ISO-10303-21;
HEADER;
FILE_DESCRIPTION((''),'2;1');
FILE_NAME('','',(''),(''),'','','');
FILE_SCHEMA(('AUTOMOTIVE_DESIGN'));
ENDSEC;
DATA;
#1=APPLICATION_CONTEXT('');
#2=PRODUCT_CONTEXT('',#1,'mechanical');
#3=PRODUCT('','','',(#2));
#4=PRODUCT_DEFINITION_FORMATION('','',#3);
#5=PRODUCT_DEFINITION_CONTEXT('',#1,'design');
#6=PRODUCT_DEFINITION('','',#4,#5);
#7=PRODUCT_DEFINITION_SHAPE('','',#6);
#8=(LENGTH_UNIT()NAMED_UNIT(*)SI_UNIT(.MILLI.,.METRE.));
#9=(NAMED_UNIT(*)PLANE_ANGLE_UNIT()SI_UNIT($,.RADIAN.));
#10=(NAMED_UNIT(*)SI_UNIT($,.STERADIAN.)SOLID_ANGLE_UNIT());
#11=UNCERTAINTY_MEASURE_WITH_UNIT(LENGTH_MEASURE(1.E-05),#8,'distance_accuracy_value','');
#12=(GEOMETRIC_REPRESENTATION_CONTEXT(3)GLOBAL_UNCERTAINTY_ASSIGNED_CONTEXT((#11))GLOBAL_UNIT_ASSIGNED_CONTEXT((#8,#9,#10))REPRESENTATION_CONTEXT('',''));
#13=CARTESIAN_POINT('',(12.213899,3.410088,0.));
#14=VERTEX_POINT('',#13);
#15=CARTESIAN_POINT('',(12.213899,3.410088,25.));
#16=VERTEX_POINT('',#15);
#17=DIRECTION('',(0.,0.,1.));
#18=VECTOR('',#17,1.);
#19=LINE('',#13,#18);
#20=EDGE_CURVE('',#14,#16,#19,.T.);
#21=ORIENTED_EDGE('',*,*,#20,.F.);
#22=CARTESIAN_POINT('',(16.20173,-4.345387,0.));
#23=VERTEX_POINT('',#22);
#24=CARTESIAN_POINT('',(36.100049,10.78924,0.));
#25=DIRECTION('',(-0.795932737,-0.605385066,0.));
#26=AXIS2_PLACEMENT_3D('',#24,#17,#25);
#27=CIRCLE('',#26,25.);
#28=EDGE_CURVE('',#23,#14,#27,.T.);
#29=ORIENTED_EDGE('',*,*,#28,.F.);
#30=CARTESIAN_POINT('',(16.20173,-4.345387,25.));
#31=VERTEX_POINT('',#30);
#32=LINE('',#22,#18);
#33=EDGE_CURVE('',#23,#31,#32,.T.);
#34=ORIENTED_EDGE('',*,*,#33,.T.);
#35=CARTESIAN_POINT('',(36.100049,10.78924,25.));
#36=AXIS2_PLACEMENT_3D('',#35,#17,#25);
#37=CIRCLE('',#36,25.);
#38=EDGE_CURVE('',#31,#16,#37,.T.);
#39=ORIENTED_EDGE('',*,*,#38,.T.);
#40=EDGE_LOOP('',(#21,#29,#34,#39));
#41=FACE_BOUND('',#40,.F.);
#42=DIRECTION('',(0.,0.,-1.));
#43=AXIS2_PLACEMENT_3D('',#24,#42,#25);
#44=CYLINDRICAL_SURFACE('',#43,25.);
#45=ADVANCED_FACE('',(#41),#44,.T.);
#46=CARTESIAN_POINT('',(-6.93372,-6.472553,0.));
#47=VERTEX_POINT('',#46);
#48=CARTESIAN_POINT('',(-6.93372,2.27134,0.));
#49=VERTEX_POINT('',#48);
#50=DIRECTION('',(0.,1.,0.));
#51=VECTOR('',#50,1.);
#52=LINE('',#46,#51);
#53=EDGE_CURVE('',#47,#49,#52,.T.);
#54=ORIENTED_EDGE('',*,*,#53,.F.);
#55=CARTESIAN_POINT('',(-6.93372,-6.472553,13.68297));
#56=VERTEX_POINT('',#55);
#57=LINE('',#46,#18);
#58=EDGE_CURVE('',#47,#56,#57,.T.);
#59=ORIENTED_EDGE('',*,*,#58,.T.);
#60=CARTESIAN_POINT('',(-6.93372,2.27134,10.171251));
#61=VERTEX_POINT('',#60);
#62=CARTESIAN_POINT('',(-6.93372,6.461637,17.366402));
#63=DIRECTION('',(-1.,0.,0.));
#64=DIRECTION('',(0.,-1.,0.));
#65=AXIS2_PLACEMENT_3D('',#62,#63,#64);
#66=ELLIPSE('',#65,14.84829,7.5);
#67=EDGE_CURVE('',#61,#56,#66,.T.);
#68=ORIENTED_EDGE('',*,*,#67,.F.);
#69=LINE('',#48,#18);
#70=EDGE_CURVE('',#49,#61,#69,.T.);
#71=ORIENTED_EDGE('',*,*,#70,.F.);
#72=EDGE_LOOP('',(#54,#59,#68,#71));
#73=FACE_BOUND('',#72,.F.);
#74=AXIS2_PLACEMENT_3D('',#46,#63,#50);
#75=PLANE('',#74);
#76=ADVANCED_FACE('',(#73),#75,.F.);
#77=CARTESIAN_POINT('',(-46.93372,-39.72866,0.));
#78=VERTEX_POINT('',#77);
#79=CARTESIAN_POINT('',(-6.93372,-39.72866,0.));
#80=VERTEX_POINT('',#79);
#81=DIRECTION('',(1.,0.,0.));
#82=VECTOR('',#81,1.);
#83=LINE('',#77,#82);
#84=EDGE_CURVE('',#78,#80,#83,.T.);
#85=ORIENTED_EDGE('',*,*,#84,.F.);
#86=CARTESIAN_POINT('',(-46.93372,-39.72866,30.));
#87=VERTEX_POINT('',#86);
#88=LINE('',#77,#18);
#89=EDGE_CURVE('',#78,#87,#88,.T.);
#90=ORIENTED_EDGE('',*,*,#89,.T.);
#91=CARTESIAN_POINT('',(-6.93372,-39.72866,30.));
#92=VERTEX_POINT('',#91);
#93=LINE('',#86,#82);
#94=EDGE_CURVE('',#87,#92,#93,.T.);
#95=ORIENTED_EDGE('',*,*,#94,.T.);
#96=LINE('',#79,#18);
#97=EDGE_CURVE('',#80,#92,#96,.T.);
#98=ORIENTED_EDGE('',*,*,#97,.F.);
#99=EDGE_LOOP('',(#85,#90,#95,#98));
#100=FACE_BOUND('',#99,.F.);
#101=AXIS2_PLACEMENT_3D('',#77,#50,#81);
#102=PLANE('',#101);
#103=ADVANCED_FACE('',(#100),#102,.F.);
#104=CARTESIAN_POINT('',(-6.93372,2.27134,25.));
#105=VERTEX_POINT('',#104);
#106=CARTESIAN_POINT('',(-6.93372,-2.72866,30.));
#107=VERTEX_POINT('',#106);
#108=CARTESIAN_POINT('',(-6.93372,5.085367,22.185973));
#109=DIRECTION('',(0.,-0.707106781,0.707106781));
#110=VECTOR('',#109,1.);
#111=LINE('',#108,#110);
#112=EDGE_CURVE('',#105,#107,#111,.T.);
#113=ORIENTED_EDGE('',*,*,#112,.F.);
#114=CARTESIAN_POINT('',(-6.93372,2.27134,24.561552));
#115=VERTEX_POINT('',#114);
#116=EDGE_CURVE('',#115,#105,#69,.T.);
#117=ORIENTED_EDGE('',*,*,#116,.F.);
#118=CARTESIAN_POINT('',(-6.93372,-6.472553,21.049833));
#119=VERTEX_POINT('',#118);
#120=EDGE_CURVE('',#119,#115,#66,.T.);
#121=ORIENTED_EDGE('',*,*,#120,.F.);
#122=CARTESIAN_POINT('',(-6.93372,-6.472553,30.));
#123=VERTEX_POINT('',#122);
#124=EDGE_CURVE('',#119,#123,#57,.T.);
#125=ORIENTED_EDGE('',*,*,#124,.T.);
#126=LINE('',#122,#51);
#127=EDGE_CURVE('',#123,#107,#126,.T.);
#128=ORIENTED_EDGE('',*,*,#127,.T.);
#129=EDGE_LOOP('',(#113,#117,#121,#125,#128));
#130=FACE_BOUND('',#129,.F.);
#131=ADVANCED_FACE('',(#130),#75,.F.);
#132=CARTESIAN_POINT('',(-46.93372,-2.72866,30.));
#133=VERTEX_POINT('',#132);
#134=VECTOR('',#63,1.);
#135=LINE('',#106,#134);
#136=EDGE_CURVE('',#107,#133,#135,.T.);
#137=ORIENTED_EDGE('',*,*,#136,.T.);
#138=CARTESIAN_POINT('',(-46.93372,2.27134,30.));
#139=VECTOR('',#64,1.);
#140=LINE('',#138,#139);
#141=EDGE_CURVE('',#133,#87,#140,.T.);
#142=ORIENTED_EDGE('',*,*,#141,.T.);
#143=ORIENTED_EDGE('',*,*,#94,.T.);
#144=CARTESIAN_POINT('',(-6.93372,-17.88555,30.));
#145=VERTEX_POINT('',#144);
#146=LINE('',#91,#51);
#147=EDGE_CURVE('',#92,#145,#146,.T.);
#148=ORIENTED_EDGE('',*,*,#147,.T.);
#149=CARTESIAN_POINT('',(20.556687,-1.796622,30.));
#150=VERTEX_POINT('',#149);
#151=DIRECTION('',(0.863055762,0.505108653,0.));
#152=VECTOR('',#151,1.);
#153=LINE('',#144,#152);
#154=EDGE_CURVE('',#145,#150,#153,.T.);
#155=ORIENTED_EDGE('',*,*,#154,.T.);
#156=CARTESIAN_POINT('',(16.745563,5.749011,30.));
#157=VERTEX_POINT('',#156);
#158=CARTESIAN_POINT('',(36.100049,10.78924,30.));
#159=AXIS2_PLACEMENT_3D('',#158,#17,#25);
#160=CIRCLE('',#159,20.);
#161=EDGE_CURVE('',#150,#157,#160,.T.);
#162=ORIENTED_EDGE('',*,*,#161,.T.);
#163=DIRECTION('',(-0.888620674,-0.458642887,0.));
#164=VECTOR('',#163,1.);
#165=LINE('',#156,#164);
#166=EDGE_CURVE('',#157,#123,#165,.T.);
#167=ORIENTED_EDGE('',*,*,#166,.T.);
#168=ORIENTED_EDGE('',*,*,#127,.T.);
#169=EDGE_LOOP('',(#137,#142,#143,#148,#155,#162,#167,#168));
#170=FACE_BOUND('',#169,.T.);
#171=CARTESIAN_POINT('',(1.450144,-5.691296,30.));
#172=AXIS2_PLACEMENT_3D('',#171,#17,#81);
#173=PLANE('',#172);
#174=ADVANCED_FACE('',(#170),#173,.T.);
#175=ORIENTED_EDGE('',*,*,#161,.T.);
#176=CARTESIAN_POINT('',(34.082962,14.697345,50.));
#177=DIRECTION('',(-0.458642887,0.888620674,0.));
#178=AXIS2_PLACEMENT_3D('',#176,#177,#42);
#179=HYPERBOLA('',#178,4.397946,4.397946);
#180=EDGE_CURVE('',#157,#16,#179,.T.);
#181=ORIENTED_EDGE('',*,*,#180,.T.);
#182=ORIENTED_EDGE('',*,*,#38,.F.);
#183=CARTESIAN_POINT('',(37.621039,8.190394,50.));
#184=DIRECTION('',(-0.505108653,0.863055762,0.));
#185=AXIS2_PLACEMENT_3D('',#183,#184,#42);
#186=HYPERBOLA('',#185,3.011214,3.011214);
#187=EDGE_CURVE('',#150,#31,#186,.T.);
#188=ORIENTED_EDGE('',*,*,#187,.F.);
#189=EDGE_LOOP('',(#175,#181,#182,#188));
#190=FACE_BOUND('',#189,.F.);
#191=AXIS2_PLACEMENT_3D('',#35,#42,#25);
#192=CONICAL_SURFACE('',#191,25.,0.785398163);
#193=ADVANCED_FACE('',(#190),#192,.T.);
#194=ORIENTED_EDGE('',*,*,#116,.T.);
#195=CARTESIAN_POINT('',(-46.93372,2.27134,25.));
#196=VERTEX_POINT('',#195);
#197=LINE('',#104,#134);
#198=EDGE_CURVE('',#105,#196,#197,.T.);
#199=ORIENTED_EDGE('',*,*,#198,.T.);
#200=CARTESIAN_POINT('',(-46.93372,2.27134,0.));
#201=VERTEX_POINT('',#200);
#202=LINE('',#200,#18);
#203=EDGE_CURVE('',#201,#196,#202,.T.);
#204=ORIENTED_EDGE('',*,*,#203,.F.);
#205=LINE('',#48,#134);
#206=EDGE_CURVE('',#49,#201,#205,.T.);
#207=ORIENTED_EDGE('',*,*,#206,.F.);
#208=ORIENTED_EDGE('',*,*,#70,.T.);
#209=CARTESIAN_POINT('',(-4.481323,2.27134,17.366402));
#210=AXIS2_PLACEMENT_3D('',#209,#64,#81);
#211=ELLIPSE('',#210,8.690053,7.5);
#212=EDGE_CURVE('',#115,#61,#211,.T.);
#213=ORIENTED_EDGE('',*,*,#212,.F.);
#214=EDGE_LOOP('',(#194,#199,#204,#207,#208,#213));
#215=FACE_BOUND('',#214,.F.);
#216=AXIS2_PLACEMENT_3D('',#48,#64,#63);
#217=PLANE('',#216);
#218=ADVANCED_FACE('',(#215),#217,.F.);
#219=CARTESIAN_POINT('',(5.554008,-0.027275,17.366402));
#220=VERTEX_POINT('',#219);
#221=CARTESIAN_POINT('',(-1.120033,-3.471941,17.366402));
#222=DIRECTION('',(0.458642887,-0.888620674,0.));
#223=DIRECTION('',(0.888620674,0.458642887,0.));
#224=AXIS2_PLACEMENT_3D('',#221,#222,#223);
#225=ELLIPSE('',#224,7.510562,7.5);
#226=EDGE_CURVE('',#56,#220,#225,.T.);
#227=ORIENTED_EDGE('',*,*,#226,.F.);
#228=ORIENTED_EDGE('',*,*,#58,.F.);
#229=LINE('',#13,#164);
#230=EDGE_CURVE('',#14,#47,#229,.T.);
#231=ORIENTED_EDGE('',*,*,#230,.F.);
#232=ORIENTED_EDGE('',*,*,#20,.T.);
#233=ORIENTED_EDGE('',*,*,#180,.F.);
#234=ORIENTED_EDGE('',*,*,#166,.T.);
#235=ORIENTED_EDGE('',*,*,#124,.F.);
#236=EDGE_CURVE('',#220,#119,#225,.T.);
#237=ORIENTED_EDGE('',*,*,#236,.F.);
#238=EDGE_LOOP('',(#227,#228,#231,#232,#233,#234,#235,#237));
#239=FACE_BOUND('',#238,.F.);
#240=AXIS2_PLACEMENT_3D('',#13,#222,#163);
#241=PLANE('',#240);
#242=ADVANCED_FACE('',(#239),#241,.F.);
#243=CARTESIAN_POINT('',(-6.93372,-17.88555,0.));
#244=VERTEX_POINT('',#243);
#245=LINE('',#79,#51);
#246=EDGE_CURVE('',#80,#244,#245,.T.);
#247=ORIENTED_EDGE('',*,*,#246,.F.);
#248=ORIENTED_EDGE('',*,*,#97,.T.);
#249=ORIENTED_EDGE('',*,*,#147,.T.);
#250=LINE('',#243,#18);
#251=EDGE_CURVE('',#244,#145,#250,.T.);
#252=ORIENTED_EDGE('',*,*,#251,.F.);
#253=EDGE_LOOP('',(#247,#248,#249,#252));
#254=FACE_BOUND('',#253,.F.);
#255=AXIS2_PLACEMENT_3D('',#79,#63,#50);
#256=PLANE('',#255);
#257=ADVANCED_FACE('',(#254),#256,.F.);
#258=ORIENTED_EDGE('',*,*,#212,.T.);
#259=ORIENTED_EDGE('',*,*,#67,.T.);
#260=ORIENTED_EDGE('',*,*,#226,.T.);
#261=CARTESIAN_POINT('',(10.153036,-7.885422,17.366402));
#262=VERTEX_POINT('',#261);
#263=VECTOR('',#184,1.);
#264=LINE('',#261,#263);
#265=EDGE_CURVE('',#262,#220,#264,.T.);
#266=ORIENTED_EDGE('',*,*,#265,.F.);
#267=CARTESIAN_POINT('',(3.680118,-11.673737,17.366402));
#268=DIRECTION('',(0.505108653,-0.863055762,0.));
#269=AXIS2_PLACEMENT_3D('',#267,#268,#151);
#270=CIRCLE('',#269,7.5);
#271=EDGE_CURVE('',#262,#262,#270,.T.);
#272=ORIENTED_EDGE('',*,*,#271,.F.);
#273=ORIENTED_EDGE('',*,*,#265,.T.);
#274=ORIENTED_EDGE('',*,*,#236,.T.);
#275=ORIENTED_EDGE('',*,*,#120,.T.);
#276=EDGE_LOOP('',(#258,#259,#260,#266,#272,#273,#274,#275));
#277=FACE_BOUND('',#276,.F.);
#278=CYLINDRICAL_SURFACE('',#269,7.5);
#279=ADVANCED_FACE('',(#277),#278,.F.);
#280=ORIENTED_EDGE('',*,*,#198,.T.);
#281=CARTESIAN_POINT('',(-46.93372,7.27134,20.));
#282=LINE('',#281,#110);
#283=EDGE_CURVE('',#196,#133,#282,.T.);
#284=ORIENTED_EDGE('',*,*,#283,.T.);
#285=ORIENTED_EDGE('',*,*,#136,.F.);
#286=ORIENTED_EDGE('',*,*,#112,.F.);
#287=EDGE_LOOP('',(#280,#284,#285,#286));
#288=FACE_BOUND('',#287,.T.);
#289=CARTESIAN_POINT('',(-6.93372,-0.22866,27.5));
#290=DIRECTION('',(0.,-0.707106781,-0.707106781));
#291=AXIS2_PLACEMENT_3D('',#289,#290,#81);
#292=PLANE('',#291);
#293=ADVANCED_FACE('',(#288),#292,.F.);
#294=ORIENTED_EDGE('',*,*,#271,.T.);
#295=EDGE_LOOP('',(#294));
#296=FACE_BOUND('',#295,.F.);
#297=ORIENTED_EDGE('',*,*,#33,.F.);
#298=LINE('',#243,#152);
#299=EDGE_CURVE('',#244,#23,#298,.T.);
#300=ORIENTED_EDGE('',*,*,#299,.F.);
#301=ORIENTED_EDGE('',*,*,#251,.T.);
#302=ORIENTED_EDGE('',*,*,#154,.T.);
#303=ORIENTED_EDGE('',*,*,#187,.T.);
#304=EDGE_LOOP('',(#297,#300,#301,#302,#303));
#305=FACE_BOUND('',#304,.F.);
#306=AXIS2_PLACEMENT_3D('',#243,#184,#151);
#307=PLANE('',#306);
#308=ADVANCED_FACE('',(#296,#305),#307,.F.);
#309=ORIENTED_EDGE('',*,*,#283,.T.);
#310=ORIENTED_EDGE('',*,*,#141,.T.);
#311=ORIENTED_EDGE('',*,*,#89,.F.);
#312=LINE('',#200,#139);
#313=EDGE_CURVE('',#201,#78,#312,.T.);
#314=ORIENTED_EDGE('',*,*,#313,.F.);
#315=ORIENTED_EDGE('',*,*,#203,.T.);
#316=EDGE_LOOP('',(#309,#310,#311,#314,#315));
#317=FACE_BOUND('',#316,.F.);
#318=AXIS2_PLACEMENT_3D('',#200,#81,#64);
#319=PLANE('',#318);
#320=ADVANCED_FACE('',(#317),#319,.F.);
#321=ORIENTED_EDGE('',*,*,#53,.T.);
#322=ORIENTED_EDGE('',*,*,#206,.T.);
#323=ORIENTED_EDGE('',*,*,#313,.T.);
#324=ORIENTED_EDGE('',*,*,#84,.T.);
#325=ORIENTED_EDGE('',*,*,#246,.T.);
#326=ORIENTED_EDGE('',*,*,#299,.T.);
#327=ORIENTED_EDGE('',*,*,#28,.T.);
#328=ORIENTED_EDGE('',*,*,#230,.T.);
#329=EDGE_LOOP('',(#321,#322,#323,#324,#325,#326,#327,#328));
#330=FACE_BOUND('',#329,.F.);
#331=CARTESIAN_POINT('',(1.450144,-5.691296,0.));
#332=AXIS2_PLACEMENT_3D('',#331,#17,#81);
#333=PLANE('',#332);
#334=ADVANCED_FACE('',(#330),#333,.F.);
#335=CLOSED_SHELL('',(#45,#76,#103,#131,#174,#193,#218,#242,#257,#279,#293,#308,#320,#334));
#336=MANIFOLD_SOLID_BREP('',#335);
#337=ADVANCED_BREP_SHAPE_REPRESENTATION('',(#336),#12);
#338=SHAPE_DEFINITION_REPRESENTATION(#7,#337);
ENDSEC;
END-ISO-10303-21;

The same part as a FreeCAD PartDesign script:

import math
import FreeCAD as App
import Part
import Sketcher
from FreeCAD import Vector


def edges_at(feature, points):
    """Names of the edges that pass closest to the given points."""
    edges = feature.Shape.Edges
    near = lambda p: min(range(len(edges)), key=lambda i: edges[i].distToShape(Part.Vertex(*p))[0])
    return sorted({f"Edge{near(p) + 1}" for p in points})

doc = App.newDocument("Part")
body = doc.addObject("PartDesign::Body", "Body")

# Sketch on XY plane
sketch1 = doc.addObject("Sketcher::SketchObject", "Sketch")
body.addObject(sketch1)
sketch1.AttachmentSupport = (doc.XY_Plane, [""])
sketch1.MapMode = "FlatFace"
sketch1.addGeometry([
    Part.LineSegment(Vector(-6.93372, 2.27134, 0), Vector(-46.93372, 2.27134, 0)),  # 0
    Part.LineSegment(Vector(-46.93372, 2.27134, 0), Vector(-46.93372, -39.72866, 0)),  # 1
    Part.LineSegment(Vector(-46.93372, -39.72866, 0), Vector(-6.93372, -39.72866, 0)),  # 2
    Part.LineSegment(Vector(-6.93372, -39.72866, 0), Vector(-6.93372, -17.88555, 0)),  # 3
    Part.LineSegment(Vector(-6.93372, -17.88555, 0), Vector(16.20173, -4.345387, 0)),  # 4
    Part.ArcOfCircle(Part.Circle(Vector(36.100049, 10.78924, 0), Vector(0, 0, 1), 25), math.radians(-142.743444), math.radians(197.167495)),  # 5
    Part.LineSegment(Vector(12.213899, 3.410088, 0), Vector(-6.93372, -6.472553, 0)),  # 6
    Part.LineSegment(Vector(-6.93372, -6.472553, 0), Vector(-6.93372, 2.27134, 0)),  # 7
], False)
sketch1.addConstraint([
    Sketcher.Constraint("Coincident", 0, 2, 1, 1),
    Sketcher.Constraint("Coincident", 1, 2, 2, 1),
    Sketcher.Constraint("Coincident", 2, 2, 3, 1),
    Sketcher.Constraint("Coincident", 3, 2, 4, 1),
    Sketcher.Constraint("Coincident", 4, 2, 5, 1),
    Sketcher.Constraint("Coincident", 5, 2, 6, 1),
    Sketcher.Constraint("Coincident", 6, 2, 7, 1),
    Sketcher.Constraint("Coincident", 7, 2, 0, 1),
    Sketcher.Constraint("Horizontal", 0),
    Sketcher.Constraint("Vertical", 1),
    Sketcher.Constraint("Horizontal", 2),
    Sketcher.Constraint("Vertical", 3),
    Sketcher.Constraint("Vertical", 7),
    Sketcher.Constraint("Vertical", 3, 2, 6, 2),
    Sketcher.Constraint("Radius", 5, 25.0),
    Sketcher.Constraint("DistanceX", 0, 2, 0, 1, 40.0),
    Sketcher.Constraint("DistanceY", 1, 2, 1, 1, 42.0),
    Sketcher.Constraint("DistanceY", 3, 1, 3, 2, 21.84311),
    Sketcher.Constraint("DistanceX", -1, 1, 5, 2, 12.213899),
    Sketcher.Constraint("DistanceY", 0, 2, 5, 3, 8.5179),
    Sketcher.Constraint("DistanceY", 7, 1, 7, 2, 8.743893),
    Sketcher.Constraint("DistanceX", -1, 1, 5, 3, 36.100049),
    Sketcher.Constraint("DistanceY", -1, 1, 5, 3, 10.78924),
    Sketcher.Constraint("DistanceX", 0, 2, -1, 1, 46.93372),
    Sketcher.Constraint("DistanceX", -1, 1, 4, 2, 16.20173),
])
pad1 = doc.addObject("PartDesign::Pad", "Pad")
body.addObject(pad1)
pad1.Profile = sketch1
pad1.Length = 30

# Sketch on an angled plane
sketch2 = doc.addObject("Sketcher::SketchObject", "Sketch001")
body.addObject(sketch2)
sketch2.Placement = App.Placement(Vector(6.027939, -10.29966, 0), App.Rotation(Vector(0.863055762, 0.505108653, 0), Vector(0, 0, 1), Vector(0.505108653, -0.863055762, 0), "ZXY"))
sketch2.addGeometry(Part.Circle(Vector(-2.720358, 17.366402, 0), Vector(0, 0, 1), 7.5), False)
sketch2.addConstraint([
    Sketcher.Constraint("Diameter", 0, 15.0),
    Sketcher.Constraint("DistanceY", -1, 1, 0, 3, 17.366402),
    Sketcher.Constraint("DistanceX", 0, 3, -1, 1, 2.720358),
])
pocket1 = doc.addObject("PartDesign::Pocket", "Pocket")
body.addObject(pocket1)
pocket1.Profile = sketch2
pocket1.Type = "ThroughAll"
doc.recompute()

chamfer = doc.addObject("PartDesign::Chamfer", "Chamfer")
body.addObject(chamfer)
chamfer.Base = (pocket1, edges_at(pocket1, [(58.333, 22.221, 30), (-26.934, 2.271, 30)]))
chamfer.Size = 5

doc.recompute()
